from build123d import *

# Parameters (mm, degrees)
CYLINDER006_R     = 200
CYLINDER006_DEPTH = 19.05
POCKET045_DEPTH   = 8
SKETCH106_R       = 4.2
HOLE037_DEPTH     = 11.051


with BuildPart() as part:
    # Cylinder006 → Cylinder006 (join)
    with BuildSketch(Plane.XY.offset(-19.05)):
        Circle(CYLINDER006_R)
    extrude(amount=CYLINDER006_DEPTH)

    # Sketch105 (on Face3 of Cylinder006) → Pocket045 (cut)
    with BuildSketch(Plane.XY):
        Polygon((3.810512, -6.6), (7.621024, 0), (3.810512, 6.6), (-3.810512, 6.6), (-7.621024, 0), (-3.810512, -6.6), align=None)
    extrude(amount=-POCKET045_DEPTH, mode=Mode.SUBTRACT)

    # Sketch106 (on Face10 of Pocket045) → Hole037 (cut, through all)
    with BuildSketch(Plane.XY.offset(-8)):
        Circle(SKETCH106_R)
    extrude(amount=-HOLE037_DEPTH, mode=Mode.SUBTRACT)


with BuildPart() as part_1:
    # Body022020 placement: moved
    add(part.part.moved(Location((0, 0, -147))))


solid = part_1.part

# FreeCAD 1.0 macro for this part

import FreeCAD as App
import Part
import Sketcher
Q = App.Units.Quantity

doc = App.newDocument("Part")
body = doc.addObject("PartDesign::Body", "Body")

sketch1 = body.newObject("Sketcher::SketchObject", "Sketch")
sketch1.AttachmentSupport = (doc.getObject("XY_Plane"), [""])
sketch1.MapMode = "FlatFace"
sketch1.AttachmentOffset = App.Placement(App.Vector(0, 0, -19.05), App.Rotation())
sketch1.addGeometry(Part.Circle(App.Vector(0, 0, 0), App.Vector(0, 0, 1), 200), False)
sketch1.addConstraint([
    Sketcher.Constraint("Coincident", 0, 3, -1, 1),
    Sketcher.Constraint("Diameter", 0, Q("400 mm")),
])
pad1 = body.newObject("PartDesign::Pad", "Pad")
pad1.Profile = sketch1
pad1.Length = 19.05

sketch2 = body.newObject("Sketcher::SketchObject", "Sketch001")
sketch2.AttachmentSupport = (doc.getObject("XY_Plane"), [""])
sketch2.MapMode = "FlatFace"
sketch2.addGeometry([
    Part.LineSegment(App.Vector(4, -7, 0), App.Vector(8, 0, 0)),
    Part.LineSegment(App.Vector(8, 0, 0), App.Vector(4, 7, 0)),
    Part.LineSegment(App.Vector(4, 7, 0), App.Vector(-4, 7, 0)),
    Part.LineSegment(App.Vector(-4, 7, 0), App.Vector(-8, 0, 0)),
    Part.LineSegment(App.Vector(-8, 0, 0), App.Vector(-4, -7, 0)),
    Part.LineSegment(App.Vector(-4, -7, 0), App.Vector(4, -7, 0)),
], False)
sketch2.addConstraint([
    Sketcher.Constraint("Coincident", 0, 2, 1, 1),
    Sketcher.Constraint("Coincident", 1, 2, 2, 1),
    Sketcher.Constraint("Coincident", 2, 2, 3, 1),
    Sketcher.Constraint("Coincident", 3, 2, 4, 1),
    Sketcher.Constraint("Coincident", 4, 2, 5, 1),
    Sketcher.Constraint("Coincident", 5, 2, 0, 1),
    Sketcher.Constraint("Horizontal", 2),
    Sketcher.Constraint("Horizontal", 5),
    Sketcher.Constraint("Symmetric", 0, 2, 3, 2, -1, 1),
    Sketcher.Constraint("Symmetric", 1, 2, 4, 2, -1, 1),
    Sketcher.Constraint("PointOnObject", 0, 2, -1),
    Sketcher.Constraint("Parallel", 0, 3),
    Sketcher.Constraint("Vertical", 2, 2, 4, 2),
    Sketcher.Constraint("Angle", 0, Q("59.999999 deg")),
    Sketcher.Constraint("DistanceY", -1, 1, 1, 2, Q("6.6 mm")),
    Sketcher.Constraint("DistanceX", 2, 2, 2, 1, Q("7.621024 mm")),
])
pocket1 = body.newObject("PartDesign::Pocket", "Pocket")
pocket1.Profile = sketch2
pocket1.Length = 8

sketch3 = body.newObject("Sketcher::SketchObject", "Sketch002")
sketch3.AttachmentSupport = (doc.getObject("XY_Plane"), [""])
sketch3.MapMode = "FlatFace"
sketch3.AttachmentOffset = App.Placement(App.Vector(0, 0, -8), App.Rotation())
sketch3.addGeometry(Part.Circle(App.Vector(0, 0, 0), App.Vector(0, 0, 1), 4.2), False)
sketch3.addConstraint([
    Sketcher.Constraint("Coincident", 0, 3, -1, 1),
    Sketcher.Constraint("Diameter", 0, Q("8.4 mm")),
])
pocket2 = body.newObject("PartDesign::Pocket", "Pocket001")
pocket2.Profile = sketch3
pocket2.Type = "ThroughAll"
body2 = doc.addObject("PartDesign::Body", "Body001")
doc.recompute()

body.Placement = App.Placement(App.Vector(0, 0, -147), App.Rotation(App.Vector(0, 0, 1), 0))
boolean = body2.newObject("PartDesign::Boolean", "Boolean")
boolean.Type = "Fuse"
boolean.addObjects([body])

doc.recompute()
